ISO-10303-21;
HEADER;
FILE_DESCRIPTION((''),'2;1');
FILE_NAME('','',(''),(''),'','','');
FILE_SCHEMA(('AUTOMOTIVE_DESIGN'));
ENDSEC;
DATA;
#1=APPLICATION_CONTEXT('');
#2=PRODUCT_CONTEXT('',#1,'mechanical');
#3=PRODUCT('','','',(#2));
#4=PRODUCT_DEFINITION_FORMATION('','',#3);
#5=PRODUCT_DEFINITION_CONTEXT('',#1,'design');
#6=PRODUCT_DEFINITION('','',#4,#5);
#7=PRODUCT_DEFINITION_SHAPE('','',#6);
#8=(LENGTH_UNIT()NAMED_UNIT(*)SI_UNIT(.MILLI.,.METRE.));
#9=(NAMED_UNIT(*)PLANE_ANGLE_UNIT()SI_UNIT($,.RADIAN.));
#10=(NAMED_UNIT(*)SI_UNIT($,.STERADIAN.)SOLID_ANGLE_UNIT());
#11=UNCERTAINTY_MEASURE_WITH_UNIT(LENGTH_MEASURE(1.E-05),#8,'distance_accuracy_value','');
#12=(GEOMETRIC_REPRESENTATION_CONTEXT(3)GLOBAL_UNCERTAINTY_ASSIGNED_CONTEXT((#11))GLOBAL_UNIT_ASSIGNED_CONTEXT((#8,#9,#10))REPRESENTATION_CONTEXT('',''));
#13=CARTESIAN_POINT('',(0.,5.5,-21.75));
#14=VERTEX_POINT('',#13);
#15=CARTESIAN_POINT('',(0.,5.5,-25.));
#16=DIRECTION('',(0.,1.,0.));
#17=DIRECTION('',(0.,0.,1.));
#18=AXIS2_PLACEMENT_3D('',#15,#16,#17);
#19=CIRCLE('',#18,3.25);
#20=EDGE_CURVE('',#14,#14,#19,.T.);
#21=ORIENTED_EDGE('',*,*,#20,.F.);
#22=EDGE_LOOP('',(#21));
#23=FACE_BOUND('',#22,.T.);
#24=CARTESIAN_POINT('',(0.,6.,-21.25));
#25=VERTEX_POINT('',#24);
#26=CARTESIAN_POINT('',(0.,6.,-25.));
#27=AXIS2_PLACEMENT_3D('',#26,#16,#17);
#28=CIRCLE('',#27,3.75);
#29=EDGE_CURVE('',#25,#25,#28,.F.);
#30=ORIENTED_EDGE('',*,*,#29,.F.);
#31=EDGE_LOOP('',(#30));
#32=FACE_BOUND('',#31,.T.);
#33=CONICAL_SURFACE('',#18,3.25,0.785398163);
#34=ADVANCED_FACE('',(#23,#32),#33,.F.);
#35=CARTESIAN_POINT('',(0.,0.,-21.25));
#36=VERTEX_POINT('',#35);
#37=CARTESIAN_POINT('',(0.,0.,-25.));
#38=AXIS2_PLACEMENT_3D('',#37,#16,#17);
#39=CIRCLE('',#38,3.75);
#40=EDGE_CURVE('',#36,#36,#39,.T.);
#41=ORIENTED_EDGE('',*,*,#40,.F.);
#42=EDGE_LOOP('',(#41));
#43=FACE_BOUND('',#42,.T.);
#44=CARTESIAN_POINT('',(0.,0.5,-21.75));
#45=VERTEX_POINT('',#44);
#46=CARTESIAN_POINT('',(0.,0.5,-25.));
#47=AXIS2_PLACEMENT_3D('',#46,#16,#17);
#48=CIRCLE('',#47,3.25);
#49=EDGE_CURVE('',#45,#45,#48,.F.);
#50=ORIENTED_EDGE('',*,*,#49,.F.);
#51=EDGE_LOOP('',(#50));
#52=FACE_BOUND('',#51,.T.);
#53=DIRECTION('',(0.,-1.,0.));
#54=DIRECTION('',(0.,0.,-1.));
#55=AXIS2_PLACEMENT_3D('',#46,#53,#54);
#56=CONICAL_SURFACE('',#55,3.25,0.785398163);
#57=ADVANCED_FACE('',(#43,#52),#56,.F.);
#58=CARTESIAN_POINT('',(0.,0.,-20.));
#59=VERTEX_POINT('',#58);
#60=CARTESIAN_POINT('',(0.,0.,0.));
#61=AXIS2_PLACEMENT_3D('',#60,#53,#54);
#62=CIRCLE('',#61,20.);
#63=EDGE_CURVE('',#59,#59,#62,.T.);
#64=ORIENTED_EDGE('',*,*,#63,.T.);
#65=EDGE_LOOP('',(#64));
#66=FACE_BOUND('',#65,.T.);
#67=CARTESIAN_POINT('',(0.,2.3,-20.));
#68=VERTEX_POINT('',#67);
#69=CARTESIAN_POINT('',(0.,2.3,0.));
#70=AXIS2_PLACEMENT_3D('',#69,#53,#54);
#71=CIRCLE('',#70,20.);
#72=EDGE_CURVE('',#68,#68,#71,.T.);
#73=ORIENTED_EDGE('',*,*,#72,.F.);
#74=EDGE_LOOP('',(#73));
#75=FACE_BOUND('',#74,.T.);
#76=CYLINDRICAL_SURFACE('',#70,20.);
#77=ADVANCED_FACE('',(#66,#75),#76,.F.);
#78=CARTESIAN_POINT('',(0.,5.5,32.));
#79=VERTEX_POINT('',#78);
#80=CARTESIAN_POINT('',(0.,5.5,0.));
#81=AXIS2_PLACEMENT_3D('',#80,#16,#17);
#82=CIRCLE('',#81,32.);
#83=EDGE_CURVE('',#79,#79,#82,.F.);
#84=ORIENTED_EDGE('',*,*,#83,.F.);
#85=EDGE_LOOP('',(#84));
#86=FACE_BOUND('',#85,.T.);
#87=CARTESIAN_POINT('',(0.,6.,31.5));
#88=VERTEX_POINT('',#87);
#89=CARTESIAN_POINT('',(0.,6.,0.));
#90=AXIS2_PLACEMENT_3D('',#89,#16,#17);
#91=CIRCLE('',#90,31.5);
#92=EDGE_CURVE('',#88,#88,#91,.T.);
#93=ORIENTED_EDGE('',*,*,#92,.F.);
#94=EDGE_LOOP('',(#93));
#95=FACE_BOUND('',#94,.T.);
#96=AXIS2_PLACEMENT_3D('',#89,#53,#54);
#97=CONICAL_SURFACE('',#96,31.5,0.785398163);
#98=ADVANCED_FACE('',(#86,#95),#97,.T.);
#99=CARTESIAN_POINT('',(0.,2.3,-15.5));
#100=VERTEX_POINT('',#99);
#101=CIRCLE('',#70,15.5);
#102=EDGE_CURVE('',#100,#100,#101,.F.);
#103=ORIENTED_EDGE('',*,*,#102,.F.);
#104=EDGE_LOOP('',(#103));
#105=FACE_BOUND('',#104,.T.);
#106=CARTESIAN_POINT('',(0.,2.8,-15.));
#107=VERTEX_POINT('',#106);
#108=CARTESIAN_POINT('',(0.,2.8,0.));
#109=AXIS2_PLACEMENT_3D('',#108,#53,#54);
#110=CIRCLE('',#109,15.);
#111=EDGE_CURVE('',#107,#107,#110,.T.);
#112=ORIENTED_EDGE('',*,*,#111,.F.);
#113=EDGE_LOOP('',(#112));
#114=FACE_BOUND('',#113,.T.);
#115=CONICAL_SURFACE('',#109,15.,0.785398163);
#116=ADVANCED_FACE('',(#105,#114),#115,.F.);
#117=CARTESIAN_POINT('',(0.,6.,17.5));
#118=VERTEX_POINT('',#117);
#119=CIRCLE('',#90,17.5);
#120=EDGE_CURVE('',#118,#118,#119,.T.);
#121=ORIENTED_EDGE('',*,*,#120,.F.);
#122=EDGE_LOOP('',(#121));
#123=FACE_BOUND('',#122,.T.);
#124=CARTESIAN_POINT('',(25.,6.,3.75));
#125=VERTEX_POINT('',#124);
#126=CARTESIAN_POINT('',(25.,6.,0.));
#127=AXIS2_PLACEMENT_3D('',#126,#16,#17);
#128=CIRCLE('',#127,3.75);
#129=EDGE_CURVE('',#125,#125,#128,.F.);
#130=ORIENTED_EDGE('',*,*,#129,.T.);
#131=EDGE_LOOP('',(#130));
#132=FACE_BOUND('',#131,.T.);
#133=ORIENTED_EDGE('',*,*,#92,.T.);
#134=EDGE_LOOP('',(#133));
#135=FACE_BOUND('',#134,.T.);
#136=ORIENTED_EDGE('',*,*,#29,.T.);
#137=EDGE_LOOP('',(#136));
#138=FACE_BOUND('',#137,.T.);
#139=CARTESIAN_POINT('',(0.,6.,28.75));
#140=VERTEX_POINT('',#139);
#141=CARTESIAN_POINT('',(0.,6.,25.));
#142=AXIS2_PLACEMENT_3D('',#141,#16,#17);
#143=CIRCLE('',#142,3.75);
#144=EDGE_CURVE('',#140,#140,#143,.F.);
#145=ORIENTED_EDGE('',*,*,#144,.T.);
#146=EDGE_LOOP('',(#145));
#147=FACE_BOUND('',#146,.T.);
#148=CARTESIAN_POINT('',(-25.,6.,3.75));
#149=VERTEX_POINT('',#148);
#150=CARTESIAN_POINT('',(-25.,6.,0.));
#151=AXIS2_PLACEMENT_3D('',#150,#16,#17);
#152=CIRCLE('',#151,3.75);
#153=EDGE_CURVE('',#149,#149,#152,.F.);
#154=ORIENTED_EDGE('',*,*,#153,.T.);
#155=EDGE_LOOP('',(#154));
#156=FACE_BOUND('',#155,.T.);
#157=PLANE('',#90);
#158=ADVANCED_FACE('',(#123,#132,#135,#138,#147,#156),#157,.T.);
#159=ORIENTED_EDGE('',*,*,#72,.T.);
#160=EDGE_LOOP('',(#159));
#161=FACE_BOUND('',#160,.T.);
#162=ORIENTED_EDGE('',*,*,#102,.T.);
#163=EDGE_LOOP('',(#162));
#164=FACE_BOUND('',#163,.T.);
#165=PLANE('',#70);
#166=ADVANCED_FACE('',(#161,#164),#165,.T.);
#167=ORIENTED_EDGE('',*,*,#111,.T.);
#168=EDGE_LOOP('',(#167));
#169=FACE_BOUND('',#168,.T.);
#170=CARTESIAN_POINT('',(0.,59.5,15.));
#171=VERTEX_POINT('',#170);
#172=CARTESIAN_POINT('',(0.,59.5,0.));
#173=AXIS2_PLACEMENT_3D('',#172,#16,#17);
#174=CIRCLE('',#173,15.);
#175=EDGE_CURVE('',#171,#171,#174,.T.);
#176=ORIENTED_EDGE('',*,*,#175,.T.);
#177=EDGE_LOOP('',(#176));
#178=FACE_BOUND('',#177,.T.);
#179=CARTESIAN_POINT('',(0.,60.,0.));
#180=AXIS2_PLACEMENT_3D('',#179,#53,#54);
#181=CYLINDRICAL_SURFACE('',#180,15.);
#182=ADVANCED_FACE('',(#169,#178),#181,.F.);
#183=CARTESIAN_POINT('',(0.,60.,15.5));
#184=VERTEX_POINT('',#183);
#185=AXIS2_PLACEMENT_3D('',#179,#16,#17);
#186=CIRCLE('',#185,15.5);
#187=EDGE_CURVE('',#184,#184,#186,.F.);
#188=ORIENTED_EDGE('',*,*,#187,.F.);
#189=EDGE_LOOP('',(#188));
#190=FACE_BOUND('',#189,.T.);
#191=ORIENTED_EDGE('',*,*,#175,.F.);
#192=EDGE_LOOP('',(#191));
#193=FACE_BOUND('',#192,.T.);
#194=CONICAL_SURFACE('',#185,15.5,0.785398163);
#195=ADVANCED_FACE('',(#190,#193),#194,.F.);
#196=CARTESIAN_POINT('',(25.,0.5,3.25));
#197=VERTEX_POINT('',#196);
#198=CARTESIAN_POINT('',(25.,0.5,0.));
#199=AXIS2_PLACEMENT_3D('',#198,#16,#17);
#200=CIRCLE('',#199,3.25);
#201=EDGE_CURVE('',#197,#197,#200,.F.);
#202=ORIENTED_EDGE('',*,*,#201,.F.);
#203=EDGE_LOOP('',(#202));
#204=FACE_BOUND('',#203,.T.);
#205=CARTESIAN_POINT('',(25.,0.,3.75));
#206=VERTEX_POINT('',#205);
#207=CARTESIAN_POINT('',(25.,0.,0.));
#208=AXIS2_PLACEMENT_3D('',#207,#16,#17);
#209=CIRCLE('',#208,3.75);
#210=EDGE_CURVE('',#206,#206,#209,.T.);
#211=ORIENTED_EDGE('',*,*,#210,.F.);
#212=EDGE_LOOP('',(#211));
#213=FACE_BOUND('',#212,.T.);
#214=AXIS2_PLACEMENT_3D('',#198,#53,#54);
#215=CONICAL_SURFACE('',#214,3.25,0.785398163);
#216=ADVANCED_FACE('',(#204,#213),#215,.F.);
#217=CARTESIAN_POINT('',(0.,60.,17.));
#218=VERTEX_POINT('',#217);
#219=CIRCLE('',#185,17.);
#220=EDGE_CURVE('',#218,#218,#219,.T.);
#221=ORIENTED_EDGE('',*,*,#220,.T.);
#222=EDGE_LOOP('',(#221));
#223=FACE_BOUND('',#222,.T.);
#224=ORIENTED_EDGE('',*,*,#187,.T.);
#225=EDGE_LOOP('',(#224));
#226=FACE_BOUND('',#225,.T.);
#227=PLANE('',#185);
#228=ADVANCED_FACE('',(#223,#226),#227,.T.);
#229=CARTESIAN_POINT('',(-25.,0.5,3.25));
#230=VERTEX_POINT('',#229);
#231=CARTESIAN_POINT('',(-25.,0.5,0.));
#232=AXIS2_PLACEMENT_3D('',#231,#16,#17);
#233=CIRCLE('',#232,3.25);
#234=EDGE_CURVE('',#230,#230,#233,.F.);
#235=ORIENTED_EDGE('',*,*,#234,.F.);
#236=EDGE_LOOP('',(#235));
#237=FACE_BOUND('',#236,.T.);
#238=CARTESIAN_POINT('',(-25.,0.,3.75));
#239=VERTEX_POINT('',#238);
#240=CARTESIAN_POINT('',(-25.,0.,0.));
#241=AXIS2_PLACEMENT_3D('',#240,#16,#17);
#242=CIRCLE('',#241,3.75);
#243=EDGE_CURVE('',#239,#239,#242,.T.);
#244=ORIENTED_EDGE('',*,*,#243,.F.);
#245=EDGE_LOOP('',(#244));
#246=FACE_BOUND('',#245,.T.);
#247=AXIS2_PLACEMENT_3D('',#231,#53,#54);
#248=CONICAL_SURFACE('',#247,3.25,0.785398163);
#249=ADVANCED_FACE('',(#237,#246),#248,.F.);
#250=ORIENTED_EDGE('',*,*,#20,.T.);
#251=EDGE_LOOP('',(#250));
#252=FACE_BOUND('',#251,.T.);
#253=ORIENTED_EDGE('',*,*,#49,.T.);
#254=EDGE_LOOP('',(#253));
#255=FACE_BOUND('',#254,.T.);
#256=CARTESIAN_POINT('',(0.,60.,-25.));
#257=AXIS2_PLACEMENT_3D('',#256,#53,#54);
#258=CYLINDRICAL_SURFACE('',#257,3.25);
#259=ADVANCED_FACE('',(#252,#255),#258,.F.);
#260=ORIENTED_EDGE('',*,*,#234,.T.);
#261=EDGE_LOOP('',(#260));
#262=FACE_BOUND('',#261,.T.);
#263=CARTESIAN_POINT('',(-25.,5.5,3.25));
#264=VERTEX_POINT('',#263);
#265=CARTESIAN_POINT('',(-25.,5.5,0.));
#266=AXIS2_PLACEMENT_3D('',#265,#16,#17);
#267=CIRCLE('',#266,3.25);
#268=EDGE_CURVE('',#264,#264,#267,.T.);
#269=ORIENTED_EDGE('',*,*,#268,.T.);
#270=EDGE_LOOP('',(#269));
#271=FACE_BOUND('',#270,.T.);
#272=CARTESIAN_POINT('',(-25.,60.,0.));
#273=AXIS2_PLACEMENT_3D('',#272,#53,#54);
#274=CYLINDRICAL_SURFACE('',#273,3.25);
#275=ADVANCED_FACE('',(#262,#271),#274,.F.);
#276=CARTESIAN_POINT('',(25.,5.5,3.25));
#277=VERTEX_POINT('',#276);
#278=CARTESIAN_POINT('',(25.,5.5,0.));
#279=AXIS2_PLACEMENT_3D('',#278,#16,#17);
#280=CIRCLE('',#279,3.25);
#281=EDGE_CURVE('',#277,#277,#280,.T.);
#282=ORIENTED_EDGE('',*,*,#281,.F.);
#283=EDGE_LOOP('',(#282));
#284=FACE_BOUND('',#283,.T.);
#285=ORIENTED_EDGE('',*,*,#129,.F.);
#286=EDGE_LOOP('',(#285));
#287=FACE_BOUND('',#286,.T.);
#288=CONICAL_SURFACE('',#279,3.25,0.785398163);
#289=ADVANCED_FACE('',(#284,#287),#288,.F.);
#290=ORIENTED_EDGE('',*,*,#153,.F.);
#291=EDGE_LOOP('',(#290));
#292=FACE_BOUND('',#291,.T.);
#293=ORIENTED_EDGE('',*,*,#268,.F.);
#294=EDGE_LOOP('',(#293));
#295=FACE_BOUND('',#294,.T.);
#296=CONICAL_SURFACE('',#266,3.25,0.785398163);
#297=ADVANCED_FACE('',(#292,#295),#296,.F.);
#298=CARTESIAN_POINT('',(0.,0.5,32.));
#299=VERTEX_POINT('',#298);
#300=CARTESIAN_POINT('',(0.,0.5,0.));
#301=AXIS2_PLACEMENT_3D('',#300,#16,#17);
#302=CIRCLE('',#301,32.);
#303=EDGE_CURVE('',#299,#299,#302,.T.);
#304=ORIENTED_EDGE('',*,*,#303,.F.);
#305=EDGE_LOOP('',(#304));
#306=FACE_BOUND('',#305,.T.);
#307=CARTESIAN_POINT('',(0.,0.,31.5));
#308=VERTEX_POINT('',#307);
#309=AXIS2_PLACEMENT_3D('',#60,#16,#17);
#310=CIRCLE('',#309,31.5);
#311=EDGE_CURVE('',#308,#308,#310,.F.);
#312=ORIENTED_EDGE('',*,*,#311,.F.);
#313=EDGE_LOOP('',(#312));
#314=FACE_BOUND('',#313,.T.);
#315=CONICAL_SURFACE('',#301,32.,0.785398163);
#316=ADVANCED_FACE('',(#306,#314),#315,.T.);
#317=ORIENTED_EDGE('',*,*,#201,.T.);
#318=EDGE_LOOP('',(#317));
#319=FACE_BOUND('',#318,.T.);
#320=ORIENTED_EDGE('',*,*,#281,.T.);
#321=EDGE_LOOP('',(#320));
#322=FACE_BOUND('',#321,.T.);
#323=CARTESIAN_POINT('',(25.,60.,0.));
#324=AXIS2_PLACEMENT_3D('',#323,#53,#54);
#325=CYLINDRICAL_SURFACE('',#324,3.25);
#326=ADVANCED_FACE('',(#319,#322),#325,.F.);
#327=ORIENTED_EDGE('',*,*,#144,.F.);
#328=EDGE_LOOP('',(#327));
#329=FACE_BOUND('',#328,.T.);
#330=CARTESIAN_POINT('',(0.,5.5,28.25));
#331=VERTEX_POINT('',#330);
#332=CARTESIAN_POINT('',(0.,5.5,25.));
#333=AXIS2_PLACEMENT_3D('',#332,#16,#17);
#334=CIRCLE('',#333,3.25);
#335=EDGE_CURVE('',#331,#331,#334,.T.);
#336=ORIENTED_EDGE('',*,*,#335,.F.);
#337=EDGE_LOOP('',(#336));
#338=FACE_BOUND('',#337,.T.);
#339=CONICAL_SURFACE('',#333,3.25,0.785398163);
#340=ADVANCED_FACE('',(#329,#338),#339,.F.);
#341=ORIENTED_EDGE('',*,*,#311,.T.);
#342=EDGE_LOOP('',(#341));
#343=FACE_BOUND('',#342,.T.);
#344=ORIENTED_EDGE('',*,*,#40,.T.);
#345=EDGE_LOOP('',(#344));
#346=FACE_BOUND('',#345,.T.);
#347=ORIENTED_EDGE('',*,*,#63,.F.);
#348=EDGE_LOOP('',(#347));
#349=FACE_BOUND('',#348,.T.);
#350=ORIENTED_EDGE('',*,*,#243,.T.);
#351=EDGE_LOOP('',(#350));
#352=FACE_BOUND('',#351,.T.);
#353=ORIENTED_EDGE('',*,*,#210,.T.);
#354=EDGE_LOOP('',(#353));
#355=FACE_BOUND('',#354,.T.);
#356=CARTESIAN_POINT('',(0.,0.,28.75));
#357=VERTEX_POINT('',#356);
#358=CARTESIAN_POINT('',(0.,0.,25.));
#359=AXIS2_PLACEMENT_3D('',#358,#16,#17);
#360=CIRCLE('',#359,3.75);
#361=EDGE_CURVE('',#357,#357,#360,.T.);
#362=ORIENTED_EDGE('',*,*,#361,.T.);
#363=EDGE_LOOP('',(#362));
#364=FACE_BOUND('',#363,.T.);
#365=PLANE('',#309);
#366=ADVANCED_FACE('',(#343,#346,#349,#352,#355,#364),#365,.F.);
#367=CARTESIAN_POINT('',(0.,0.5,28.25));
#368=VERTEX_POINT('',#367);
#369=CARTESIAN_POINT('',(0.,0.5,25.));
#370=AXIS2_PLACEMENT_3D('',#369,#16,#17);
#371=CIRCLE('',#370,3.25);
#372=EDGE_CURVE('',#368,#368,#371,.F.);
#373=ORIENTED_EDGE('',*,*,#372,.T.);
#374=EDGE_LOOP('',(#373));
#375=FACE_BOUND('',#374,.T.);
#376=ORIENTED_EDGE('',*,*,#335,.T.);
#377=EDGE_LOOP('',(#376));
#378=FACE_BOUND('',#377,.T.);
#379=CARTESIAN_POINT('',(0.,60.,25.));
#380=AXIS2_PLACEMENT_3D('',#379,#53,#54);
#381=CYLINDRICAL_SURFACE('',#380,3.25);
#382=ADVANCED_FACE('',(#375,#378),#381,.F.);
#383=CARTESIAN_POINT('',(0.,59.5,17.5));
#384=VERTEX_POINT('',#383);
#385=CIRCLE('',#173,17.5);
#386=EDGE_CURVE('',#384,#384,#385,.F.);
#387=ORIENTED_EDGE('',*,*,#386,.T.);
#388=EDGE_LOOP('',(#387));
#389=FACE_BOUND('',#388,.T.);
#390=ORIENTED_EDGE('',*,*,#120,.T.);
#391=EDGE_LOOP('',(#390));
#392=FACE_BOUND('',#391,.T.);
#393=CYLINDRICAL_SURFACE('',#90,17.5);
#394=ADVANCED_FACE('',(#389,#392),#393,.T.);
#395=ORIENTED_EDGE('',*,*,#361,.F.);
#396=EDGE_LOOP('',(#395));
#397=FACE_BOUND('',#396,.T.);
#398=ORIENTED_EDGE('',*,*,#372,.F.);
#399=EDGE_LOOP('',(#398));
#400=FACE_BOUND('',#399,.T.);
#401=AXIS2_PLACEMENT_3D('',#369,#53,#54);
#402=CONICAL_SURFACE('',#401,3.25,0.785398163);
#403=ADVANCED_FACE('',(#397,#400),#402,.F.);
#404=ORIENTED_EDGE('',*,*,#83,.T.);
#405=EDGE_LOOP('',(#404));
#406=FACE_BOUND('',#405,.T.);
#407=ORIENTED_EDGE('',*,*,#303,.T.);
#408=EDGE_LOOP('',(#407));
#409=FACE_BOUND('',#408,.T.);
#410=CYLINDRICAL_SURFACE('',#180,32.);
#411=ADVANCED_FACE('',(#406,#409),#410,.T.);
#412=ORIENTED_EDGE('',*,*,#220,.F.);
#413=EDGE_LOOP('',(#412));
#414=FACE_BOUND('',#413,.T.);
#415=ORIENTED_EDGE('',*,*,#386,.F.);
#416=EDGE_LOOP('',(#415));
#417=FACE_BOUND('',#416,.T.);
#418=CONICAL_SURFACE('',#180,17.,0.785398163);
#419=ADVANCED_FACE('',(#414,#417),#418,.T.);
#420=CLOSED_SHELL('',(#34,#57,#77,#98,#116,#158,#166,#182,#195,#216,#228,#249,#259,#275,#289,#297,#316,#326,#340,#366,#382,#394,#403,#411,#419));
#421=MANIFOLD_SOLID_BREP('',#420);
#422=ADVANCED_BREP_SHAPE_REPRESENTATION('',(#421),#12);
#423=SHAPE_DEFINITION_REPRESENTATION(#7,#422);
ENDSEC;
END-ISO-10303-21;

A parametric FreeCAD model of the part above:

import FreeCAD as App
import Part
import Sketcher


def edges_at(feature, points):
    """Names of the edges that pass closest to the given points."""
    edges = feature.Shape.Edges
    near = lambda p: min(range(len(edges)), key=lambda i: edges[i].distToShape(Part.Vertex(*p))[0])
    return sorted({f"Edge{near(p) + 1}" for p in points})


def add_polygon(sketch, points):
    """Adds a closed chain of lines whose ends are joined by coincident constraints."""
    first, n = sketch.GeometryCount, len(points)
    for a, b in zip(points, points[1:] + points[:1]):
        sketch.addGeometry(Part.LineSegment(App.Vector(*a, 0), App.Vector(*b, 0)), False)
    for i in range(n):
        sketch.addConstraint(Sketcher.Constraint("Coincident", first + i, 2, first + (i + 1) % n, 1))

doc = App.newDocument("Part")
params = doc.addObject("Spreadsheet::Sheet", "Params")
for row, (alias, value) in enumerate([
    ("sketch1_diameter", "64 mm"),
    ("pad1_length", "60 mm"),
    ("sketch2_diameter", "35 mm"),
    ("pocket1_length", "54 mm"),
    ("sketch3_diameter", "40 mm"),
    ("pocket2_length", "2.3 mm"),
    ("sketch4_diameter", "30 mm"),
    ("chamfer_size", "0.5 mm"),
    ("sketch5_diameter", "6.5 mm"),
    ("chamfer2_size", "0.5 mm"),
], start=1):
    params.set(f"A{row}", alias)
    params.set(f"B{row}", "=" + value)
    params.setAlias(f"B{row}", alias)

body = doc.addObject("PartDesign::Body", "Body")

# Sketch on XZ plane
sketch1 = doc.addObject("Sketcher::SketchObject", "Sketch")
body.addObject(sketch1)
sketch1.AttachmentSupport = (doc.XZ_Plane, [""])
sketch1.MapMode = "FlatFace"
sketch1.addGeometry(Part.Circle(App.Vector(0, 0, 0), App.Vector(0, 0, 1), 32), False)
sketch1.addConstraint([
    Sketcher.Constraint("Coincident", 0, 3, -1, 1),
    Sketcher.Constraint("Diameter", 0, 64.0),
])
sketch1.setExpression("Constraints[1]", "Params.sketch1_diameter")
pad1 = doc.addObject("PartDesign::Pad", "Pad")
body.addObject(pad1)
pad1.Profile = sketch1
pad1.setExpression("Length", "Params.pad1_length")
pad1.Reversed = True

# Sketch on XZ plane
sketch2 = doc.addObject("Sketcher::SketchObject", "Sketch001")
body.addObject(sketch2)
sketch2.AttachmentSupport = (doc.XZ_Plane, [""])
sketch2.MapMode = "FlatFace"
sketch2.AttachmentOffset = App.Placement(App.Vector(0, 0, -60), App.Rotation())
add_polygon(sketch2, [(-44, -44), (-44, 44), (44, 44), (44, -44)])  # lines 0-3
sketch2.addGeometry(Part.Circle(App.Vector(0, 0, 0), App.Vector(0, 0, 1), 18), False)  # 4
sketch2.addConstraint([
    Sketcher.Constraint("Vertical", 0),
    Sketcher.Constraint("Horizontal", 1),
    Sketcher.Constraint("Vertical", 2),
    Sketcher.Constraint("Horizontal", 3),
    Sketcher.Constraint("Coincident", 4, 3, -1, 1),
    Sketcher.Constraint("Symmetric", 0, 2, 2, 2, -1, 1),
    Sketcher.Constraint("Equal", 3, 0),
    Sketcher.Constraint("Diameter", 4, 35.0),
    Sketcher.Constraint("DistanceX", 1, 1, 1, 2, 87.718),
])
sketch2.setExpression("Constraints[11]", "Params.sketch2_diameter")
pocket1 = doc.addObject("PartDesign::Pocket", "Pocket")
body.addObject(pocket1)
pocket1.Profile = sketch2
pocket1.setExpression("Length", "Params.pocket1_length")
pocket1.Reversed = True

# Sketch on XZ plane
sketch3 = doc.addObject("Sketcher::SketchObject", "Sketch002")
body.addObject(sketch3)
sketch3.AttachmentSupport = (doc.XZ_Plane, [""])
sketch3.MapMode = "FlatFace"
sketch3.addGeometry(Part.Circle(App.Vector(0, 0, 0), App.Vector(0, 0, 1), 20), False)
sketch3.addConstraint([
    Sketcher.Constraint("Coincident", 0, 3, -1, 1),
    Sketcher.Constraint("Diameter", 0, 40.0),
])
sketch3.setExpression("Constraints[1]", "Params.sketch3_diameter")
pocket2 = doc.addObject("PartDesign::Pocket", "Pocket001")
body.addObject(pocket2)
pocket2.Profile = sketch3
pocket2.setExpression("Length", "Params.pocket2_length")

# Sketch on XZ plane
sketch4 = doc.addObject("Sketcher::SketchObject", "Sketch003")
body.addObject(sketch4)
sketch4.AttachmentSupport = (doc.XZ_Plane, [""])
sketch4.MapMode = "FlatFace"
sketch4.AttachmentOffset = App.Placement(App.Vector(0, 0, -2.3), App.Rotation())
sketch4.addGeometry(Part.Circle(App.Vector(0, 0, 0), App.Vector(0, 0, 1), 15), False)
sketch4.addConstraint([
    Sketcher.Constraint("Coincident", 0, 3, -1, 1),
    Sketcher.Constraint("Diameter", 0, 30.0),
])
sketch4.setExpression("Constraints[1]", "Params.sketch4_diameter")
pocket3 = doc.addObject("PartDesign::Pocket", "Pocket002")
body.addObject(pocket3)
pocket3.Profile = sketch4
pocket3.Type = "ThroughAll"
doc.recompute()

chamfer = doc.addObject("PartDesign::Chamfer", "Chamfer")
body.addObject(chamfer)
chamfer.Base = (pocket3, edges_at(pocket3, [
    (0, 60, -17.5),
    (0, 0, -32),
    (0, 60, 15),
    (0, 2.3, 15),
    (0, 6, -32),
]))
chamfer.setExpression("Size", "Params.chamfer_size")

# Sketch on XZ plane
sketch5 = doc.addObject("Sketcher::SketchObject", "Sketch004")
body.addObject(sketch5)
sketch5.AttachmentSupport = (doc.XZ_Plane, [""])
sketch5.MapMode = "FlatFace"
sketch5.addGeometry([
    Part.Circle(App.Vector(25, 0, 0), App.Vector(0, 0, 1), 3.2),
    Part.Circle(App.Vector(0, -25, 0), App.Vector(0, 0, 1), 3.2),
    Part.Circle(App.Vector(-25, 0, 0), App.Vector(0, 0, 1), 3.2),
    Part.Circle(App.Vector(0, 25, 0), App.Vector(0, 0, 1), 3.2),
], False)
sketch5.addConstraint([
    Sketcher.Constraint("Equal", 0, 1),
    Sketcher.Constraint("Equal", 1, 2),
    Sketcher.Constraint("Equal", 2, 3),
    Sketcher.Constraint("Symmetric", 0, 3, 2, 3, -1, 1),
    Sketcher.Constraint("Symmetric", 1, 3, 3, 3, -1, 1),
    Sketcher.Constraint("PointOnObject", 0, 3, -1),
    Sketcher.Constraint("PointOnObject", 1, 3, -2),
    Sketcher.Constraint("Diameter", 0, 6.5),
    Sketcher.Constraint("DistanceX", -1, 1, 0, 3, 25.0),
    Sketcher.Constraint("DistanceY", 1, 3, -1, 1, 25.0),
])
sketch5.setExpression("Constraints[7]", "Params.sketch5_diameter")
pocket4 = doc.addObject("PartDesign::Pocket", "Pocket003")
body.addObject(pocket4)
pocket4.Profile = sketch5
pocket4.Type = "ThroughAll"
doc.recompute()

chamfer2 = doc.addObject("PartDesign::Chamfer", "Chamfer001")
body.addObject(chamfer2)
chamfer2.Base = (pocket4, edges_at(pocket4, [
    (25, 6, 3.25),
    (25, 0, 3.25),
    (0, 6, -21.75),
    (0, 0, -21.75),
    (-25, 6, 3.25),
    (-25, 0, 3.25),
    (0, 6, 28.25),
    (0, 0, 28.25),
]))
chamfer2.setExpression("Size", "Params.chamfer2_size")

doc.recompute()
